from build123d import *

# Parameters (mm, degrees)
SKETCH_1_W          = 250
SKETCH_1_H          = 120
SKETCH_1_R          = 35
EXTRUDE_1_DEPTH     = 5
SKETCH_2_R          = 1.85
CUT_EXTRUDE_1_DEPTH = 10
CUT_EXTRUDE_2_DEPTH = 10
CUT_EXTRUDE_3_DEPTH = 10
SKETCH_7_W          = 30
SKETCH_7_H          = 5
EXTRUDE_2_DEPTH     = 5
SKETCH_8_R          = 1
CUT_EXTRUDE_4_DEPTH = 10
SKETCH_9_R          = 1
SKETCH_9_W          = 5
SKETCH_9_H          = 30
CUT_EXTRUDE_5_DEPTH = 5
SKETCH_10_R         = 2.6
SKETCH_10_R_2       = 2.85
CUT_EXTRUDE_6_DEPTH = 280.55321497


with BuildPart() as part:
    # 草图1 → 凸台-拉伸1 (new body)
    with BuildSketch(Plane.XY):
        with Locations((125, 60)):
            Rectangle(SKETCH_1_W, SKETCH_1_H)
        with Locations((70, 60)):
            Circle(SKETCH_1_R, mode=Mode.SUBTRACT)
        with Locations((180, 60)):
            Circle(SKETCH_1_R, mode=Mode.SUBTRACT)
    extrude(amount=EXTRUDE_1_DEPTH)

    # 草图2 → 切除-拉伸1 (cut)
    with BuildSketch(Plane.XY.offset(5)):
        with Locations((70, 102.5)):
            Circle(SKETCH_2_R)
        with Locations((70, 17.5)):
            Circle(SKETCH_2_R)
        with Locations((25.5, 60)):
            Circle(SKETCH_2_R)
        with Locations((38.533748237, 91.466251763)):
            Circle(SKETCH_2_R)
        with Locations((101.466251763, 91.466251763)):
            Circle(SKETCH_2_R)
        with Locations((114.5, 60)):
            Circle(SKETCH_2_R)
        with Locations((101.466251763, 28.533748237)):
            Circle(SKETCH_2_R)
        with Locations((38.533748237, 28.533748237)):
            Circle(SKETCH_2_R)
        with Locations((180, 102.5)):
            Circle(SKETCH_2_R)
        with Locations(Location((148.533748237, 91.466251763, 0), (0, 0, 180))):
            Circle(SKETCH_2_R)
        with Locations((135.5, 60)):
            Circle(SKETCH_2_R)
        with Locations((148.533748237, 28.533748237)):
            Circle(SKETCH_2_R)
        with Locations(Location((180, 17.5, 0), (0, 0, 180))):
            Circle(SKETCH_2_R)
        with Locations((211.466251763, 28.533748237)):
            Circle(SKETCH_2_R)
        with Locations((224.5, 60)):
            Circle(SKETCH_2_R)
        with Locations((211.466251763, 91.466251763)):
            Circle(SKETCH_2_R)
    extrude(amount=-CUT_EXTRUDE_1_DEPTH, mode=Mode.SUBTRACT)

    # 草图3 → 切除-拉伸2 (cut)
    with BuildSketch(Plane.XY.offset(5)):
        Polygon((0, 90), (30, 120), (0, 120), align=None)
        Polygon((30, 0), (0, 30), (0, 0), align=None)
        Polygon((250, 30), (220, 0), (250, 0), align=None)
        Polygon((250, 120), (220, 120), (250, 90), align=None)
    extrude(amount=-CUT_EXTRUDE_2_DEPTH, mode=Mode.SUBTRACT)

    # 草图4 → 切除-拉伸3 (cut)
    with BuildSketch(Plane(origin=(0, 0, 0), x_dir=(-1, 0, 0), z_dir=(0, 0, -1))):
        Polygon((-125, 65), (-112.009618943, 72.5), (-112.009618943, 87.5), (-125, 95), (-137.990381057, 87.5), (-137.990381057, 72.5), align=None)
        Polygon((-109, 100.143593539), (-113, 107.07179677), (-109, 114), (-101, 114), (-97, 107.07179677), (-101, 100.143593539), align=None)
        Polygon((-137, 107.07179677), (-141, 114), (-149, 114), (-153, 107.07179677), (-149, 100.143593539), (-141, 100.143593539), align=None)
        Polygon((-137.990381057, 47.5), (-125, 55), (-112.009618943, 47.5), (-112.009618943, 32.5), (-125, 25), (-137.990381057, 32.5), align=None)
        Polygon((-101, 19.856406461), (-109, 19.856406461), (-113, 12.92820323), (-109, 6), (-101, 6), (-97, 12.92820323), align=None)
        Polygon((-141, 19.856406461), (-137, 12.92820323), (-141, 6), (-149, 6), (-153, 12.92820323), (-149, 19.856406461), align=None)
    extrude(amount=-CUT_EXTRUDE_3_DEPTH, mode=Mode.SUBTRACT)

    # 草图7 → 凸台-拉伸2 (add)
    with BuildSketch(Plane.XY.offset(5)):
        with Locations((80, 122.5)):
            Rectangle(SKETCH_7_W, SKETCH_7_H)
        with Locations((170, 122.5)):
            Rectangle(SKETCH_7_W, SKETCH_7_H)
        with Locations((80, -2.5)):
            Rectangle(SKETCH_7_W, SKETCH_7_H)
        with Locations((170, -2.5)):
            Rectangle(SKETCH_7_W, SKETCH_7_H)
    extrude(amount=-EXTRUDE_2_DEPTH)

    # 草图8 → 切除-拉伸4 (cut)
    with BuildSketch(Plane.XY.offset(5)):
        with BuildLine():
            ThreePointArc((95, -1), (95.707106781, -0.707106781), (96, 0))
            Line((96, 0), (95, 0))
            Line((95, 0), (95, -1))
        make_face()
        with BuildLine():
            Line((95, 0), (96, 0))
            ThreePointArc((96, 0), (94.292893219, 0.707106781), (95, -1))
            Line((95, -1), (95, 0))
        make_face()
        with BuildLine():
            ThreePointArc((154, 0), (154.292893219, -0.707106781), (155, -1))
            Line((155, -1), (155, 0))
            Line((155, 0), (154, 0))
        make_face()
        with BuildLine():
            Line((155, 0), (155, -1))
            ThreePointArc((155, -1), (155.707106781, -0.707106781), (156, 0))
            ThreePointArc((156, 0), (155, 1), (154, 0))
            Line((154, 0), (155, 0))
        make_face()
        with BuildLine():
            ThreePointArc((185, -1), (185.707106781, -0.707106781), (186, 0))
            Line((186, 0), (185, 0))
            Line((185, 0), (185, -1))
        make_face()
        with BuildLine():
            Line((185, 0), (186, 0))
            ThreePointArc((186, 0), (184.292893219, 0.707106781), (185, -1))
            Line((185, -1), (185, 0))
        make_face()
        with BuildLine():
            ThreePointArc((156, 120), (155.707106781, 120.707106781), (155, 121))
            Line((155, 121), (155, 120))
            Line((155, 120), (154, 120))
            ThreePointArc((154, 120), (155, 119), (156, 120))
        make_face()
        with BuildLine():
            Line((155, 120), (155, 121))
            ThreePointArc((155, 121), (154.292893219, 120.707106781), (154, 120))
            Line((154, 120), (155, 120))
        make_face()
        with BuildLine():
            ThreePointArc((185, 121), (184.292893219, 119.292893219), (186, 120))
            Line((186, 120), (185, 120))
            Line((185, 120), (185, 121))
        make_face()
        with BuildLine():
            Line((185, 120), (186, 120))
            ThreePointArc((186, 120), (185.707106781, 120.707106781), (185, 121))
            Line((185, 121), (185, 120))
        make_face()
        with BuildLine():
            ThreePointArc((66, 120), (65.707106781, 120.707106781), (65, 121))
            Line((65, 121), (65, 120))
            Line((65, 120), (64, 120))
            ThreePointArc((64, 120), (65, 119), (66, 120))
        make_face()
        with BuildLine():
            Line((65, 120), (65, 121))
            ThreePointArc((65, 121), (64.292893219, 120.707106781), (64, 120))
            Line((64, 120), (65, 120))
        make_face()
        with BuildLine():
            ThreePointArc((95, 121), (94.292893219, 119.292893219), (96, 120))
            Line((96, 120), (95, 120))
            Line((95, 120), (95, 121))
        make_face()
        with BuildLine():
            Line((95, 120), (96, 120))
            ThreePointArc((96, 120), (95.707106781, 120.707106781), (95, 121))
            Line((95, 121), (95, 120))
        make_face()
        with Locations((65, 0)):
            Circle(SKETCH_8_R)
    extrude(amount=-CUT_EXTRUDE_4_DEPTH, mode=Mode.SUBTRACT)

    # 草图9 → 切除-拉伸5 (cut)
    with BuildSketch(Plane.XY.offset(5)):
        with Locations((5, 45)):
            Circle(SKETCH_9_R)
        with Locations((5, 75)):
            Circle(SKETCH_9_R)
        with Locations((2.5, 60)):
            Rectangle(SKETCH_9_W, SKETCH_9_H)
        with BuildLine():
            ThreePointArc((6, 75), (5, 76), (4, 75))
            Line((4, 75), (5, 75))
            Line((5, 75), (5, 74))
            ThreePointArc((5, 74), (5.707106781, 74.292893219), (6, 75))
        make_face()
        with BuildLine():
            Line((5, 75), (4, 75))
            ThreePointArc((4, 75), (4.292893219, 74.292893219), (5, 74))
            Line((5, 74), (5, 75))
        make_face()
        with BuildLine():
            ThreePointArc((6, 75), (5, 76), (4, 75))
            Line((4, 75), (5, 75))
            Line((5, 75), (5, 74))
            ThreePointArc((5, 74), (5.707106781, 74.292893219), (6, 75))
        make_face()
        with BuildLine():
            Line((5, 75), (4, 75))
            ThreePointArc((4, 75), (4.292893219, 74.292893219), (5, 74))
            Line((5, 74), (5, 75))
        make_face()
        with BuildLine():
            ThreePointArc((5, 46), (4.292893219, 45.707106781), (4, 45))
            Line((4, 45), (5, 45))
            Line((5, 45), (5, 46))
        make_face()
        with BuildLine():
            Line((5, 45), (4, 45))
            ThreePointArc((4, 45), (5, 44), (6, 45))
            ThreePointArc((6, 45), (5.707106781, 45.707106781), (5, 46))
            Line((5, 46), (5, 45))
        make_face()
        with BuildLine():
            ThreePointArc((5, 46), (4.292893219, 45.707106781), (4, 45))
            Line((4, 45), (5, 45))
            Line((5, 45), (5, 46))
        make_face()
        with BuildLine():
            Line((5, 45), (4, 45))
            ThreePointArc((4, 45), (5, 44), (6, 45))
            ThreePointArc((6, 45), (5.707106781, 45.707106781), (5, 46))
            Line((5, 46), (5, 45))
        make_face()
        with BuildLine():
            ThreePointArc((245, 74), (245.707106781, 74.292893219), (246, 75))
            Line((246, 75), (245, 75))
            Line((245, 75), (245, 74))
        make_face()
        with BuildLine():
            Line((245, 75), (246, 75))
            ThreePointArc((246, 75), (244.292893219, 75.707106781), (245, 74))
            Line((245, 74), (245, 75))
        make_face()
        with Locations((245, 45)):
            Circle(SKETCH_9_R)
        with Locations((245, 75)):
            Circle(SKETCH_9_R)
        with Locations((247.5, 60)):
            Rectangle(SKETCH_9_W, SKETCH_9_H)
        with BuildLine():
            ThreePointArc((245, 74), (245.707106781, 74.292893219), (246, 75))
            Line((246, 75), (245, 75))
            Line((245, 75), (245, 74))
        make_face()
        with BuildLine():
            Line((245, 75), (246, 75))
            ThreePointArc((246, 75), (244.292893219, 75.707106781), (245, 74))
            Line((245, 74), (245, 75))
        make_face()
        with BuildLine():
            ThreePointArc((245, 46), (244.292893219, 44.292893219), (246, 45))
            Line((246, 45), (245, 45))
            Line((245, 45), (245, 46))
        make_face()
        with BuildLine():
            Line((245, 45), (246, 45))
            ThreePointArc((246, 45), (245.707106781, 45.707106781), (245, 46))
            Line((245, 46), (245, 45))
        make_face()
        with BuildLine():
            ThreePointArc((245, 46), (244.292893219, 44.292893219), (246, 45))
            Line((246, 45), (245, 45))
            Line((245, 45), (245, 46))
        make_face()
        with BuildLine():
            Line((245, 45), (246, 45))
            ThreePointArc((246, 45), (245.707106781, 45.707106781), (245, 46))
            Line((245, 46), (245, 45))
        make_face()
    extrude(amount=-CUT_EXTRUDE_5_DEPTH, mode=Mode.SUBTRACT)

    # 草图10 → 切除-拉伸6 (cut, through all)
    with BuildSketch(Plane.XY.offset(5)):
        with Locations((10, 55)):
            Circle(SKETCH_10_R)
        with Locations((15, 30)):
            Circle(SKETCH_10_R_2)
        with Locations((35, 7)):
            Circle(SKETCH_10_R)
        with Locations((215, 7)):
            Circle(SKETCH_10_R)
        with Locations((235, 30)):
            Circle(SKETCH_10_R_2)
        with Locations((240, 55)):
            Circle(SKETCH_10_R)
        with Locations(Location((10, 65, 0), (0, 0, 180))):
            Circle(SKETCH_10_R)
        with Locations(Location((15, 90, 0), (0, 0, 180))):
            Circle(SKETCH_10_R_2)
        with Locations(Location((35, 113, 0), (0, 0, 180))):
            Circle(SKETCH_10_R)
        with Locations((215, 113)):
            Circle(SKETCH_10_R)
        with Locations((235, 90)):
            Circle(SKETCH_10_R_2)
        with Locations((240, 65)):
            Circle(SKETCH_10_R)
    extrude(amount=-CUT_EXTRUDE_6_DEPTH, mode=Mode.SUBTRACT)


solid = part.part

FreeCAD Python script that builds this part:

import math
import FreeCAD as App
import Part
import Sketcher
Q = App.Units.Quantity


def add_polygon(sketch, points):
    """Adds a closed chain of lines whose ends are joined by coincident constraints."""
    first, n = sketch.GeometryCount, len(points)
    for a, b in zip(points, points[1:] + points[:1]):
        sketch.addGeometry(Part.LineSegment(App.Vector(*a, 0), App.Vector(*b, 0)), False)
    for i in range(n):
        sketch.addConstraint(Sketcher.Constraint("Coincident", first + i, 2, first + (i + 1) % n, 1))

doc = App.newDocument("Part")
body = doc.addObject("PartDesign::Body", "Body")

# Sketch on XY plane
sketch1 = body.newObject("Sketcher::SketchObject", "Sketch")
sketch1.AttachmentSupport = (doc.getObject("XY_Plane"), [""])
sketch1.MapMode = "FlatFace"
add_polygon(sketch1, [(0, 120), (0, 0), (250, 0), (250, 120)])  # lines 0-3
sketch1.addGeometry(Part.Circle(App.Vector(70, 60, 0), App.Vector(0, 0, 1), 35), False)  # 4
sketch1.addGeometry(Part.Circle(App.Vector(180, 60, 0), App.Vector(0, 0, 1), 35), False)  # 5
sketch1.addConstraint([
    Sketcher.Constraint("Vertical", 0),
    Sketcher.Constraint("Horizontal", 1),
    Sketcher.Constraint("Vertical", 2),
    Sketcher.Constraint("Horizontal", 3),
    Sketcher.Constraint("Coincident", 0, 2, -1, 1),
    Sketcher.Constraint("Equal", 4, 5),
    Sketcher.Constraint("Horizontal", 4, 3, 5, 3),
    Sketcher.Constraint("Diameter", 4, 70.0),
    Sketcher.Constraint("DistanceX", 1, 1, 1, 2, 250.0),
    Sketcher.Constraint("DistanceY", 0, 2, 0, 1, 120.0),
    Sketcher.Constraint("DistanceX", -1, 1, 4, 3, 70.0),
    Sketcher.Constraint("DistanceY", -1, 1, 4, 3, 60.0),
    Sketcher.Constraint("DistanceX", -1, 1, 5, 3, 180.0),
])
pad1 = body.newObject("PartDesign::Pad", "Pad")
pad1.Profile = sketch1
pad1.Length = 5

# Sketch on XY plane
sketch2 = body.newObject("Sketcher::SketchObject", "Sketch001")
sketch2.AttachmentSupport = (doc.getObject("XY_Plane"), [""])
sketch2.MapMode = "FlatFace"
sketch2.AttachmentOffset = App.Placement(App.Vector(0, 0, 5), App.Rotation())
sketch2.addGeometry([
    Part.Circle(App.Vector(70, 102.5, 0), App.Vector(0, 0, 1), 1.85),  # 0
    Part.Circle(App.Vector(70, 17.5, 0), App.Vector(0, 0, 1), 1.85),  # 1
    Part.Circle(App.Vector(25.5, 60, 0), App.Vector(0, 0, 1), 1.85),  # 2
    Part.Circle(App.Vector(38.533748, 91.466252, 0), App.Vector(0, 0, 1), 1.85),  # 3
    Part.Circle(App.Vector(101.466252, 91.466252, 0), App.Vector(0, 0, 1), 1.85),  # 4
    Part.Circle(App.Vector(114.5, 60, 0), App.Vector(0, 0, 1), 1.85),  # 5
    Part.Circle(App.Vector(101.466252, 28.533748, 0), App.Vector(0, 0, 1), 1.85),  # 6
    Part.Circle(App.Vector(38.533748, 28.533748, 0), App.Vector(0, 0, 1), 1.85),  # 7
    Part.Circle(App.Vector(180, 102.5, 0), App.Vector(0, 0, 1), 1.85),  # 8
    Part.Circle(App.Vector(148.533748, 91.466252, 0), App.Vector(0, 0, 1), 1.85),  # 9
    Part.Circle(App.Vector(135.5, 60, 0), App.Vector(0, 0, 1), 1.85),  # 10
    Part.Circle(App.Vector(148.533748, 28.533748, 0), App.Vector(0, 0, 1), 1.85),  # 11
    Part.Circle(App.Vector(180, 17.5, 0), App.Vector(0, 0, 1), 1.85),  # 12
    Part.Circle(App.Vector(211.466252, 28.533748, 0), App.Vector(0, 0, 1), 1.85),  # 13
    Part.Circle(App.Vector(224.5, 60, 0), App.Vector(0, 0, 1), 1.85),  # 14
    Part.Circle(App.Vector(211.466252, 91.466252, 0), App.Vector(0, 0, 1), 1.85),  # 15
], False)
sketch2.addConstraint([
    Sketcher.Constraint("Equal", 0, 1),
    Sketcher.Constraint("Equal", 1, 2),
    Sketcher.Constraint("Equal", 2, 3),
    Sketcher.Constraint("Equal", 3, 4),
    Sketcher.Constraint("Equal", 4, 5),
    Sketcher.Constraint("Equal", 5, 6),
    Sketcher.Constraint("Equal", 6, 7),
    Sketcher.Constraint("Equal", 7, 8),
    Sketcher.Constraint("Equal", 8, 9),
    Sketcher.Constraint("Equal", 9, 10),
    Sketcher.Constraint("Equal", 10, 11),
    Sketcher.Constraint("Equal", 11, 12),
    Sketcher.Constraint("Equal", 12, 13),
    Sketcher.Constraint("Equal", 13, 14),
    Sketcher.Constraint("Equal", 14, 15),
    Sketcher.Constraint("Horizontal", 3, 3, 4, 3),
    Sketcher.Constraint("Horizontal", 2, 3, 5, 3),
    Sketcher.Constraint("Horizontal", 6, 3, 7, 3),
    Sketcher.Constraint("Horizontal", 0, 3, 8, 3),
    Sketcher.Constraint("Horizontal", 4, 3, 9, 3),
    Sketcher.Constraint("Horizontal", 5, 3, 10, 3),
    Sketcher.Constraint("Horizontal", 7, 3, 11, 3),
    Sketcher.Constraint("Horizontal", 1, 3, 12, 3),
    Sketcher.Constraint("Horizontal", 11, 3, 13, 3),
    Sketcher.Constraint("Horizontal", 10, 3, 14, 3),
    Sketcher.Constraint("Horizontal", 9, 3, 15, 3),
    Sketcher.Constraint("Vertical", 0, 3, 1, 3),
    Sketcher.Constraint("Vertical", 4, 3, 6, 3),
    Sketcher.Constraint("Vertical", 3, 3, 7, 3),
    Sketcher.Constraint("Vertical", 9, 3, 11, 3),
    Sketcher.Constraint("Vertical", 8, 3, 12, 3),
    Sketcher.Constraint("Vertical", 13, 3, 15, 3),
    Sketcher.Constraint("Diameter", 0, 3.7),
    Sketcher.Constraint("DistanceX", -1, 1, 0, 3, 70.0),
    Sketcher.Constraint("DistanceY", -1, 1, 2, 3, 60.0),
    Sketcher.Constraint("DistanceX", -1, 1, 8, 3, 180.0),
    Sketcher.Constraint("DistanceY", 1, 3, 0, 3, 85.0),
    Sketcher.Constraint("DistanceX", 2, 3, 5, 3, 89.0),
    Sketcher.Constraint("DistanceX", 5, 3, 10, 3, 21.0),
    Sketcher.Constraint("DistanceY", -1, 1, 0, 3, 102.5),
    Sketcher.Constraint("DistanceX", -1, 1, 2, 3, 25.5),
    Sketcher.Constraint("DistanceX", -1, 1, 14, 3, 224.5),
    Sketcher.Constraint("DistanceX", -1, 1, 3, 3, 38.533748),
    Sketcher.Constraint("DistanceY", -1, 1, 3, 3, 91.466252),
    Sketcher.Constraint("DistanceX", -1, 1, 4, 3, 101.466252),
    Sketcher.Constraint("DistanceY", -1, 1, 6, 3, 28.533748),
    Sketcher.Constraint("DistanceX", -1, 1, 9, 3, 148.533748),
    Sketcher.Constraint("DistanceX", -1, 1, 13, 3, 211.466252),
])
pocket1 = body.newObject("PartDesign::Pocket", "Pocket")
pocket1.Profile = sketch2
pocket1.Length = 10

# Sketch on XY plane
sketch3 = body.newObject("Sketcher::SketchObject", "Sketch002")
sketch3.AttachmentSupport = (doc.getObject("XY_Plane"), [""])
sketch3.MapMode = "FlatFace"
sketch3.AttachmentOffset = App.Placement(App.Vector(0, 0, 5), App.Rotation())
add_polygon(sketch3, [(0, 90), (30, 120), (0, 120)])  # lines 0-2
add_polygon(sketch3, [(30, 0), (0, 30), (0, 0)])  # lines 3-5
add_polygon(sketch3, [(250, 30), (220, 0), (250, 0)])  # lines 6-8
add_polygon(sketch3, [(250, 120), (220, 120), (250, 90)])  # lines 9-11
sketch3.addConstraint([
    Sketcher.Constraint("Horizontal", 1),
    Sketcher.Constraint("Vertical", 2),
    Sketcher.Constraint("Vertical", 4),
    Sketcher.Constraint("Horizontal", 5),
    Sketcher.Constraint("Horizontal", 7),
    Sketcher.Constraint("Vertical", 8),
    Sketcher.Constraint("Horizontal", 9),
    Sketcher.Constraint("Vertical", 11),
    Sketcher.Constraint("Coincident", 4, 2, -1, 1),
    Sketcher.Constraint("PointOnObject", 1, 2, -2),
    Sketcher.Constraint("PointOnObject", 6, 2, -1),
    Sketcher.Constraint("Perpendicular", 0, 3),
    Sketcher.Constraint("Perpendicular", 3, 6),
    Sketcher.Constraint("Perpendicular", 6, 10),
    Sketcher.Constraint("Horizontal", 3, 2, 8, 2),
    Sketcher.Constraint("Horizontal", 1, 2, 9, 2),
    Sketcher.Constraint("Horizontal", 2, 2, 10, 2),
    Sketcher.Constraint("Vertical", 0, 2, 5, 2),
    Sketcher.Constraint("Vertical", 6, 2, 9, 2),
    Sketcher.Constraint("Vertical", 8, 2, 10, 2),
    Sketcher.Constraint("DistanceX", 1, 2, 1, 1, 30.0),
    Sketcher.Constraint("DistanceY", -1, 1, 0, 2, 120.0),
    Sketcher.Constraint("DistanceX", -1, 1, 6, 2, 220.0),
])
pocket2 = body.newObject("PartDesign::Pocket", "Pocket001")
pocket2.Profile = sketch3
pocket2.Length = 10

# Sketch on XY plane
sketch4 = body.newObject("Sketcher::SketchObject", "Sketch003")
sketch4.AttachmentSupport = (doc.getObject("XY_Plane"), [""])
sketch4.MapMode = "FlatFace"
add_polygon(sketch4, [(125, 65), (112.009619, 72.5), (112.009619, 87.5), (125, 95), (137.990381, 87.5), (137.990381, 72.5)])  # lines 0-5
add_polygon(sketch4, [(113, 107.071797), (109, 100.143594), (101, 100.143594), (97, 107.071797), (101, 114), (109, 114)])  # lines 6-11
add_polygon(sketch4, [(137, 107.071797), (141, 114), (149, 114), (153, 107.071797), (149, 100.143594), (141, 100.143594)])  # lines 12-17
add_polygon(sketch4, [(125, 55), (137.990381, 47.5), (137.990381, 32.5), (125, 25), (112.009619, 32.5), (112.009619, 47.5)])  # lines 18-23
add_polygon(sketch4, [(101, 19.856406), (109, 19.856406), (113, 12.928203), (109, 6), (101, 6), (97, 12.928203)])  # lines 24-29
add_polygon(sketch4, [(137, 12.928203), (141, 19.856406), (149, 19.856406), (153, 12.928203), (149, 6), (141, 6)])  # lines 30-35
sketch4.addConstraint([
    Sketcher.Constraint("Vertical", 1),
    Sketcher.Constraint("Vertical", 4),
    Sketcher.Constraint("Horizontal", 7),
    Sketcher.Constraint("Horizontal", 10),
    Sketcher.Constraint("Horizontal", 13),
    Sketcher.Constraint("Horizontal", 16),
    Sketcher.Constraint("Vertical", 19),
    Sketcher.Constraint("Vertical", 22),
    Sketcher.Constraint("Horizontal", 24),
    Sketcher.Constraint("Horizontal", 27),
    Sketcher.Constraint("Horizontal", 31),
    Sketcher.Constraint("Horizontal", 34),
    Sketcher.Constraint("Parallel", 0, 3),
    Sketcher.Constraint("Parallel", 2, 5),
    Sketcher.Constraint("Perpendicular", 3, 6),
    Sketcher.Constraint("Perpendicular", 5, 8),
    Sketcher.Constraint("Parallel", 6, 9),
    Sketcher.Constraint("Parallel", 8, 11),
    Sketcher.Constraint("Parallel", 9, 12),
    Sketcher.Constraint("Parallel", 11, 14),
    Sketcher.Constraint("Parallel", 12, 15),
    Sketcher.Constraint("Parallel", 14, 17),
    Sketcher.Constraint("Perpendicular", 15, 18),
    Sketcher.Constraint("Perpendicular", 17, 20),
    Sketcher.Constraint("Parallel", 18, 21),
    Sketcher.Constraint("Parallel", 20, 23),
    Sketcher.Constraint("Perpendicular", 23, 25),
    Sketcher.Constraint("Perpendicular", 21, 26),
    Sketcher.Constraint("Parallel", 25, 28),
    Sketcher.Constraint("Parallel", 26, 29),
    Sketcher.Constraint("Parallel", 29, 30),
    Sketcher.Constraint("Parallel", 28, 32),
    Sketcher.Constraint("Parallel", 30, 33),
    Sketcher.Constraint("Parallel", 32, 35),
    Sketcher.Constraint("Horizontal", 1, 2, 3, 2),
    Sketcher.Constraint("Horizontal", 0, 2, 4, 2),
    Sketcher.Constraint("Horizontal", 8, 2, 11, 2),
    Sketcher.Constraint("Horizontal", 10, 2, 12, 2),
    Sketcher.Constraint("Horizontal", 11, 2, 14, 2),
    Sketcher.Constraint("Horizontal", 7, 2, 15, 2),
    Sketcher.Constraint("Horizontal", 14, 2, 17, 2),
    Sketcher.Constraint("Horizontal", 19, 2, 21, 2),
    Sketcher.Constraint("Horizontal", 18, 2, 22, 2),
    Sketcher.Constraint("Horizontal", 25, 2, 28, 2),
    Sketcher.Constraint("Horizontal", 29, 2, 30, 2),
    Sketcher.Constraint("Horizontal", 28, 2, 32, 2),
    Sketcher.Constraint("Horizontal", 27, 2, 33, 2),
    Sketcher.Constraint("Horizontal", 32, 2, 35, 2),
    Sketcher.Constraint("Vertical", 2, 2, 5, 2),
    Sketcher.Constraint("Vertical", 7, 2, 9, 2),
    Sketcher.Constraint("Vertical", 4, 2, 18, 2),
    Sketcher.Constraint("Vertical", 5, 2, 20, 2),
    Sketcher.Constraint("Vertical", 10, 2, 24, 2),
    Sketcher.Constraint("Vertical", 11, 2, 25, 2),
    Sketcher.Constraint("Vertical", 24, 2, 26, 2),
    Sketcher.Constraint("Vertical", 9, 2, 27, 2),
    Sketcher.Constraint("Vertical", 16, 2, 30, 2),
    Sketcher.Constraint("Vertical", 15, 2, 31, 2),
    Sketcher.Constraint("Equal", 10, 13),
    Sketcher.Constraint("Equal", 4, 19),
    Sketcher.Constraint("DistanceX", 7, 2, 7, 1, 8.0),
    Sketcher.Constraint("DistanceY", 1, 1, 1, 2, 15.0),
    Sketcher.Constraint("Angle", 0, Q("150 deg")),
    Sketcher.Constraint("Distance", 0, 15.0),
    Sketcher.Constraint("Distance", 6, 8.0),
    Sketcher.Constraint("DistanceX", -1, 1, 2, 2, 125.0),
    Sketcher.Constraint("DistanceY", -1, 1, 2, 2, 95.0),
    Sketcher.Constraint("DistanceX", -1, 1, 6, 2, 109.0),
    Sketcher.Constraint("DistanceY", -1, 1, 9, 2, 114.0),
    Sketcher.Constraint("DistanceX", -1, 1, 12, 2, 141.0),
    Sketcher.Constraint("DistanceY", -1, 1, 20, 2, 25.0),
    Sketcher.Constraint("DistanceY", -1, 1, 26, 2, 6.0),
])
pocket3 = body.newObject("PartDesign::Pocket", "Pocket002")
pocket3.Profile = sketch4
pocket3.Length = 10
pocket3.Reversed = True

# Sketch on XY plane
sketch5 = body.newObject("Sketcher::SketchObject", "Sketch004")
sketch5.AttachmentSupport = (doc.getObject("XY_Plane"), [""])
sketch5.MapMode = "FlatFace"
sketch5.AttachmentOffset = App.Placement(App.Vector(0, 0, 5), App.Rotation())
add_polygon(sketch5, [(65, 125), (65, 120), (95, 120), (95, 125)])  # lines 0-3
add_polygon(sketch5, [(155, 125), (155, 120), (185, 120), (185, 125)])  # lines 4-7
add_polygon(sketch5, [(65, 0), (65, -5), (95, -5), (95, 0)])  # lines 8-11
add_polygon(sketch5, [(155, 0), (155, -5), (185, -5), (185, 0)])  # lines 12-15
sketch5.addConstraint([
    Sketcher.Constraint("Vertical", 0),
    Sketcher.Constraint("Horizontal", 1),
    Sketcher.Constraint("Vertical", 2),
    Sketcher.Constraint("Horizontal", 3),
    Sketcher.Constraint("Vertical", 4),
    Sketcher.Constraint("Horizontal", 5),
    Sketcher.Constraint("Vertical", 6),
    Sketcher.Constraint("Horizontal", 7),
    Sketcher.Constraint("Vertical", 8),
    Sketcher.Constraint("Horizontal", 9),
    Sketcher.Constraint("Vertical", 10),
    Sketcher.Constraint("Horizontal", 11),
    Sketcher.Constraint("Vertical", 12),
    Sketcher.Constraint("Horizontal", 13),
    Sketcher.Constraint("Vertical", 14),
    Sketcher.Constraint("Horizontal", 15),
    Sketcher.Constraint("PointOnObject", 10, 2, -1),
    Sketcher.Constraint("PointOnObject", 14, 2, -1),
    Sketcher.Constraint("Horizontal", 1, 2, 4, 2),
    Sketcher.Constraint("Horizontal", 3, 2, 6, 2),
    Sketcher.Constraint("Horizontal", 9, 2, 12, 2),
    Sketcher.Constraint("Vertical", 3, 2, 8, 2),
    Sketcher.Constraint("Vertical", 2, 2, 9, 2),
    Sketcher.Constraint("Vertical", 7, 2, 12, 2),
    Sketcher.Constraint("Vertical", 6, 2, 13, 2),
    Sketcher.Constraint("Equal", 3, 5),
    Sketcher.Constraint("Equal", 6, 8),
    Sketcher.Constraint("DistanceX", 1, 1, 1, 2, 30.0),
    Sketcher.Constraint("DistanceY", 0, 2, 0, 1, 5.0),
    Sketcher.Constraint("DistanceX", -1, 1, 0, 2, 65.0),
    Sketcher.Constraint("DistanceY", -1, 1, 0, 2, 120.0),
    Sketcher.Constraint("DistanceX", -1, 1, 4, 2, 155.0),
])
pad2 = body.newObject("PartDesign::Pad", "Pad001")
pad2.Profile = sketch5
pad2.Length = 5
pad2.Reversed = True

# Sketch on XY plane
sketch6 = body.newObject("Sketcher::SketchObject", "Sketch005")
sketch6.AttachmentSupport = (doc.getObject("XY_Plane"), [""])
sketch6.MapMode = "FlatFace"
sketch6.AttachmentOffset = App.Placement(App.Vector(0, 0, 5), App.Rotation())
sketch6.addGeometry([
    Part.ArcOfCircle(Part.Circle(App.Vector(95, 0, 0), App.Vector(0, 0, 1), 1), math.radians(-90), math.radians(0)),  # 0
    Part.ArcOfCircle(Part.Circle(App.Vector(95, 0, 0), App.Vector(0, 0, 1), 1), math.radians(0), math.radians(270)),  # 1
    Part.ArcOfCircle(Part.Circle(App.Vector(155, 0, 0), App.Vector(0, 0, 1), 1), math.radians(-180), math.radians(-90)),  # 2
    Part.ArcOfCircle(Part.Circle(App.Vector(155, 0, 0), App.Vector(0, 0, 1), 1), math.radians(-90), math.radians(0)),  # 3
    Part.ArcOfCircle(Part.Circle(App.Vector(155, 0, 0), App.Vector(0, 0, 1), 1), math.radians(0), math.radians(180)),  # 4
    Part.ArcOfCircle(Part.Circle(App.Vector(185, 0, 0), App.Vector(0, 0, 1), 1), math.radians(-90), math.radians(0)),  # 5
    Part.ArcOfCircle(Part.Circle(App.Vector(185, 0, 0), App.Vector(0, 0, 1), 1), math.radians(0), math.radians(270)),  # 6
    Part.ArcOfCircle(Part.Circle(App.Vector(155, 120, 0), App.Vector(0, 0, 1), 1), math.radians(0), math.radians(90)),  # 7
    Part.ArcOfCircle(Part.Circle(App.Vector(155, 120, 0), App.Vector(0, 0, 1), 1), math.radians(90), math.radians(180)),  # 8
    Part.ArcOfCircle(Part.Circle(App.Vector(155, 120, 0), App.Vector(0, 0, 1), 1), math.radians(180), math.radians(360)),  # 9
    Part.ArcOfCircle(Part.Circle(App.Vector(185, 120, 0), App.Vector(0, 0, 1), 1), math.radians(90), math.radians(360)),  # 10
    Part.ArcOfCircle(Part.Circle(App.Vector(185, 120, 0), App.Vector(0, 0, 1), 1), math.radians(0), math.radians(90)),  # 11
    Part.ArcOfCircle(Part.Circle(App.Vector(65, 120, 0), App.Vector(0, 0, 1), 1), math.radians(0), math.radians(90)),  # 12
    Part.ArcOfCircle(Part.Circle(App.Vector(65, 120, 0), App.Vector(0, 0, 1), 1), math.radians(90), math.radians(180)),  # 13
    Part.ArcOfCircle(Part.Circle(App.Vector(65, 120, 0), App.Vector(0, 0, 1), 1), math.radians(180), math.radians(360)),  # 14
    Part.ArcOfCircle(Part.Circle(App.Vector(95, 120, 0), App.Vector(0, 0, 1), 1), math.radians(90), math.radians(360)),  # 15
    Part.ArcOfCircle(Part.Circle(App.Vector(95, 120, 0), App.Vector(0, 0, 1), 1), math.radians(0), math.radians(90)),  # 16
    Part.Circle(App.Vector(65, 0, 0), App.Vector(0, 0, 1), 1),  # 17
], False)
sketch6.addConstraint([
    Sketcher.Constraint("Tangent", 0, 1, 1, 2),
    Sketcher.Constraint("Coincident", 1, 1, 0, 2),
    Sketcher.Constraint("Tangent", 2, 2, 3, 1),
    Sketcher.Constraint("Tangent", 3, 2, 4, 1),
    Sketcher.Constraint("Tangent", 4, 2, 2, 1),
    Sketcher.Constraint("Tangent", 5, 1, 6, 2),
    Sketcher.Constraint("Coincident", 6, 1, 5, 2),
    Sketcher.Constraint("Tangent", 7, 2, 8, 1),
    Sketcher.Constraint("Tangent", 8, 2, 9, 1),
    Sketcher.Constraint("Tangent", 9, 2, 7, 1),
    Sketcher.Constraint("Tangent", 10, 1, 11, 2),
    Sketcher.Constraint("Coincident", 11, 1, 10, 2),
    Sketcher.Constraint("Tangent", 12, 2, 13, 1),
    Sketcher.Constraint("Tangent", 13, 2, 14, 1),
    Sketcher.Constraint("Tangent", 14, 2, 12, 1),
    Sketcher.Constraint("Tangent", 15, 1, 16, 2),
    Sketcher.Constraint("Coincident", 16, 1, 15, 2),
    Sketcher.Constraint("Equal", 1, 2),
    Sketcher.Constraint("Equal", 4, 5),
    Sketcher.Constraint("Equal", 6, 7),
    Sketcher.Constraint("Equal", 9, 10),
    Sketcher.Constraint("Equal", 11, 12),
    Sketcher.Constraint("Equal", 14, 15),
    Sketcher.Constraint("Equal", 16, 17),
    Sketcher.Constraint("PointOnObject", 0, 3, -1),
    Sketcher.Constraint("PointOnObject", 2, 3, -1),
    Sketcher.Constraint("PointOnObject", 5, 3, -1),
    Sketcher.Constraint("PointOnObject", 17, 3, -1),
    Sketcher.Constraint("PointOnObject", 1, 1, -1),
    Sketcher.Constraint("PointOnObject", 3, 2, -1),
    Sketcher.Constraint("PointOnObject", 4, 2, -1),
    Sketcher.Constraint("PointOnObject", 6, 1, -1),
    Sketcher.Constraint("Horizontal", 9, 3, 10, 3),
    Sketcher.Constraint("Horizontal", 11, 3, 12, 3),
    Sketcher.Constraint("Horizontal", 14, 3, 15, 3),
    Sketcher.Constraint("Horizontal", 16, 3, 8, 2),
    Sketcher.Constraint("Horizontal", 8, 2, 9, 2),
    Sketcher.Constraint("Horizontal", 9, 2, 11, 1),
    Sketcher.Constraint("Horizontal", 11, 1, 13, 2),
    Sketcher.Constraint("Horizontal", 13, 2, 14, 2),
    Sketcher.Constraint("Horizontal", 14, 2, 16, 1),
    Sketcher.Constraint("Vertical", 4, 3, 7, 3),
    Sketcher.Constraint("Vertical", 6, 3, 10, 3),
    Sketcher.Constraint("Vertical", 1, 3, 15, 3),
    Sketcher.Constraint("Vertical", 14, 3, 17, 3),
    Sketcher.Constraint("Vertical", 16, 3, 0, 1),
    Sketcher.Constraint("Vertical", 9, 3, 2, 2),
    Sketcher.Constraint("Vertical", 11, 3, 5, 1),
    Sketcher.Constraint("Vertical", 2, 2, 7, 2),
    Sketcher.Constraint("Vertical", 5, 1, 10, 1),
    Sketcher.Constraint("Vertical", 17, 3, 12, 2),
    Sketcher.Constraint("Vertical", 0, 1, 15, 1),
    Sketcher.Constraint("Diameter", 17, 2.0),
    Sketcher.Constraint("DistanceX", -1, 1, 0, 3, 95.0),
    Sketcher.Constraint("DistanceX", -1, 1, 2, 3, 155.0),
    Sketcher.Constraint("DistanceX", -1, 1, 5, 3, 185.0),
    Sketcher.Constraint("DistanceY", -1, 1, 7, 3, 120.0),
    Sketcher.Constraint("DistanceX", -1, 1, 12, 3, 65.0),
])
pocket4 = body.newObject("PartDesign::Pocket", "Pocket003")
pocket4.Profile = sketch6
pocket4.Length = 10

# Sketch on XY plane
sketch7 = body.newObject("Sketcher::SketchObject", "Sketch006")
sketch7.AttachmentSupport = (doc.getObject("XY_Plane"), [""])
sketch7.MapMode = "FlatFace"
sketch7.AttachmentOffset = App.Placement(App.Vector(0, 0, 5), App.Rotation())
sketch7.addGeometry([
    Part.LineSegment(App.Vector(0, 75, 0), App.Vector(0, 45, 0)),  # 0
    Part.LineSegment(App.Vector(0, 45, 0), App.Vector(4, 45, 0)),  # 1
    Part.ArcOfCircle(Part.Circle(App.Vector(5, 45, 0), App.Vector(0, 0, 1), 1), math.radians(180), math.radians(450)),  # 2
    Part.LineSegment(App.Vector(5, 46, 0), App.Vector(5, 74, 0)),  # 3
    Part.ArcOfCircle(Part.Circle(App.Vector(5, 75, 0), App.Vector(0, 0, 1), 1), math.radians(-90), math.radians(180)),  # 4
    Part.LineSegment(App.Vector(4, 75, 0), App.Vector(0, 75, 0)),  # 5
    Part.LineSegment(App.Vector(250, 75, 0), App.Vector(246, 75, 0)),  # 6
    Part.ArcOfCircle(Part.Circle(App.Vector(245, 75, 0), App.Vector(0, 0, 1), 1), math.radians(0), math.radians(270)),  # 7
    Part.LineSegment(App.Vector(245, 74, 0), App.Vector(245, 46, 0)),  # 8
    Part.ArcOfCircle(Part.Circle(App.Vector(245, 45, 0), App.Vector(0, 0, 1), 1), math.radians(90), math.radians(360)),  # 9
    Part.LineSegment(App.Vector(246, 45, 0), App.Vector(250, 45, 0)),  # 10
    Part.LineSegment(App.Vector(250, 45, 0), App.Vector(250, 75, 0)),  # 11
], False)
sketch7.addConstraint([
    Sketcher.Constraint("Coincident", 0, 2, 1, 1),
    Sketcher.Constraint("Coincident", 1, 2, 2, 1),
    Sketcher.Constraint("Coincident", 2, 2, 3, 1),
    Sketcher.Constraint("Coincident", 3, 2, 4, 1),
    Sketcher.Constraint("Coincident", 4, 2, 5, 1),
    Sketcher.Constraint("Coincident", 5, 2, 0, 1),
    Sketcher.Constraint("Coincident", 6, 2, 7, 1),
    Sketcher.Constraint("Coincident", 7, 2, 8, 1),
    Sketcher.Constraint("Coincident", 8, 2, 9, 1),
    Sketcher.Constraint("Coincident", 9, 2, 10, 1),
    Sketcher.Constraint("Coincident", 10, 2, 11, 1),
    Sketcher.Constraint("Coincident", 11, 2, 6, 1),
    Sketcher.Constraint("Vertical", 0),
    Sketcher.Constraint("Horizontal", 1),
    Sketcher.Constraint("Vertical", 3),
    Sketcher.Constraint("Horizontal", 5),
    Sketcher.Constraint("Horizontal", 6),
    Sketcher.Constraint("Vertical", 8),
    Sketcher.Constraint("Horizontal", 10),
    Sketcher.Constraint("Vertical", 11),
    Sketcher.Constraint("Equal", 2, 4),
    Sketcher.Constraint("Equal", 4, 7),
    Sketcher.Constraint("Equal", 7, 9),
    Sketcher.Constraint("PointOnObject", 0, 2, -2),
    Sketcher.Constraint("Horizontal", 4, 3, 7, 3),
    Sketcher.Constraint("Horizontal", 2, 3, 9, 3),
    Sketcher.Constraint("Horizontal", 9, 3, 0, 2),
    Sketcher.Constraint("Horizontal", 7, 3, 4, 2),
    Sketcher.Constraint("Horizontal", 5, 2, 6, 2),
    Sketcher.Constraint("Horizontal", 1, 2, 9, 2),
    Sketcher.Constraint("Vertical", 2, 3, 4, 3),
    Sketcher.Constraint("Vertical", 7, 3, 9, 3),
    Sketcher.Constraint("Vertical", 4, 3, 2, 2),
    Sketcher.Constraint("Vertical", 9, 3, 7, 2),
    Sketcher.Constraint("Equal", 5, 6),
    Sketcher.Constraint("Radius", 2, 1.0),
    Sketcher.Constraint("DistanceX", 1, 1, 1, 2, 4.0),
    Sketcher.Constraint("DistanceY", 0, 2, 0, 1, 30.0),
    Sketcher.Constraint("DistanceY", -1, 1, 2, 3, 45.0),
    Sketcher.Constraint("DistanceX", -1, 1, 7, 3, 245.0),
])
pocket5 = body.newObject("PartDesign::Pocket", "Pocket004")
pocket5.Profile = sketch7
pocket5.Length = 5

# Sketch on XY plane
sketch8 = body.newObject("Sketcher::SketchObject", "Sketch007")
sketch8.AttachmentSupport = (doc.getObject("XY_Plane"), [""])
sketch8.MapMode = "FlatFace"
sketch8.AttachmentOffset = App.Placement(App.Vector(0, 0, 5), App.Rotation())
sketch8.addGeometry([
    Part.Circle(App.Vector(10, 55, 0), App.Vector(0, 0, 1), 2.6),  # 0
    Part.Circle(App.Vector(15, 30, 0), App.Vector(0, 0, 1), 2.85),  # 1
    Part.Circle(App.Vector(35, 7, 0), App.Vector(0, 0, 1), 2.6),  # 2
    Part.Circle(App.Vector(215, 7, 0), App.Vector(0, 0, 1), 2.6),  # 3
    Part.Circle(App.Vector(235, 30, 0), App.Vector(0, 0, 1), 2.85),  # 4
    Part.Circle(App.Vector(240, 55, 0), App.Vector(0, 0, 1), 2.6),  # 5
    Part.Circle(App.Vector(10, 65, 0), App.Vector(0, 0, 1), 2.6),  # 6
    Part.Circle(App.Vector(15, 90, 0), App.Vector(0, 0, 1), 2.85),  # 7
    Part.Circle(App.Vector(35, 113, 0), App.Vector(0, 0, 1), 2.6),  # 8
    Part.Circle(App.Vector(215, 113, 0), App.Vector(0, 0, 1), 2.6),  # 9
    Part.Circle(App.Vector(235, 90, 0), App.Vector(0, 0, 1), 2.85),  # 10
    Part.Circle(App.Vector(240, 65, 0), App.Vector(0, 0, 1), 2.6),  # 11
], False)
sketch8.addConstraint([
    Sketcher.Constraint("Equal", 0, 2),
    Sketcher.Constraint("Equal", 2, 3),
    Sketcher.Constraint("Equal", 1, 4),
    Sketcher.Constraint("Equal", 3, 5),
    Sketcher.Constraint("Equal", 5, 6),
    Sketcher.Constraint("Equal", 4, 7),
    Sketcher.Constraint("Equal", 6, 8),
    Sketcher.Constraint("Equal", 8, 9),
    Sketcher.Constraint("Equal", 7, 10),
    Sketcher.Constraint("Equal", 9, 11),
    Sketcher.Constraint("Horizontal", 2, 3, 3, 3),
    Sketcher.Constraint("Horizontal", 1, 3, 4, 3),
    Sketcher.Constraint("Horizontal", 0, 3, 5, 3),
    Sketcher.Constraint("Horizontal", 8, 3, 9, 3),
    Sketcher.Constraint("Horizontal", 7, 3, 10, 3),
    Sketcher.Constraint("Horizontal", 6, 3, 11, 3),
    Sketcher.Constraint("Vertical", 0, 3, 6, 3),
    Sketcher.Constraint("Vertical", 1, 3, 7, 3),
    Sketcher.Constraint("Vertical", 2, 3, 8, 3),
    Sketcher.Constraint("Vertical", 3, 3, 9, 3),
    Sketcher.Constraint("Vertical", 4, 3, 10, 3),
    Sketcher.Constraint("Vertical", 5, 3, 11, 3),
    Sketcher.Constraint("Diameter", 0, 5.2),
    Sketcher.Constraint("Diameter", 1, 5.7),
    Sketcher.Constraint("DistanceX", -1, 1, 0, 3, 10.0),
    Sketcher.Constraint("DistanceY", -1, 1, 0, 3, 55.0),
    Sketcher.Constraint("DistanceX", -1, 1, 1, 3, 15.0),
    Sketcher.Constraint("DistanceY", -1, 1, 1, 3, 30.0),
    Sketcher.Constraint("DistanceX", -1, 1, 2, 3, 35.0),
    Sketcher.Constraint("DistanceY", -1, 1, 2, 3, 7.0),
    Sketcher.Constraint("DistanceX", -1, 1, 3, 3, 215.0),
    Sketcher.Constraint("DistanceX", -1, 1, 4, 3, 235.0),
    Sketcher.Constraint("DistanceX", -1, 1, 5, 3, 240.0),
    Sketcher.Constraint("DistanceY", -1, 1, 6, 3, 65.0),
    Sketcher.Constraint("DistanceY", -1, 1, 7, 3, 90.0),
    Sketcher.Constraint("DistanceY", -1, 1, 8, 3, 113.0),
])
pocket6 = body.newObject("PartDesign::Pocket", "Pocket005")
pocket6.Profile = sketch8
pocket6.Type = "ThroughAll"

doc.recompute()
